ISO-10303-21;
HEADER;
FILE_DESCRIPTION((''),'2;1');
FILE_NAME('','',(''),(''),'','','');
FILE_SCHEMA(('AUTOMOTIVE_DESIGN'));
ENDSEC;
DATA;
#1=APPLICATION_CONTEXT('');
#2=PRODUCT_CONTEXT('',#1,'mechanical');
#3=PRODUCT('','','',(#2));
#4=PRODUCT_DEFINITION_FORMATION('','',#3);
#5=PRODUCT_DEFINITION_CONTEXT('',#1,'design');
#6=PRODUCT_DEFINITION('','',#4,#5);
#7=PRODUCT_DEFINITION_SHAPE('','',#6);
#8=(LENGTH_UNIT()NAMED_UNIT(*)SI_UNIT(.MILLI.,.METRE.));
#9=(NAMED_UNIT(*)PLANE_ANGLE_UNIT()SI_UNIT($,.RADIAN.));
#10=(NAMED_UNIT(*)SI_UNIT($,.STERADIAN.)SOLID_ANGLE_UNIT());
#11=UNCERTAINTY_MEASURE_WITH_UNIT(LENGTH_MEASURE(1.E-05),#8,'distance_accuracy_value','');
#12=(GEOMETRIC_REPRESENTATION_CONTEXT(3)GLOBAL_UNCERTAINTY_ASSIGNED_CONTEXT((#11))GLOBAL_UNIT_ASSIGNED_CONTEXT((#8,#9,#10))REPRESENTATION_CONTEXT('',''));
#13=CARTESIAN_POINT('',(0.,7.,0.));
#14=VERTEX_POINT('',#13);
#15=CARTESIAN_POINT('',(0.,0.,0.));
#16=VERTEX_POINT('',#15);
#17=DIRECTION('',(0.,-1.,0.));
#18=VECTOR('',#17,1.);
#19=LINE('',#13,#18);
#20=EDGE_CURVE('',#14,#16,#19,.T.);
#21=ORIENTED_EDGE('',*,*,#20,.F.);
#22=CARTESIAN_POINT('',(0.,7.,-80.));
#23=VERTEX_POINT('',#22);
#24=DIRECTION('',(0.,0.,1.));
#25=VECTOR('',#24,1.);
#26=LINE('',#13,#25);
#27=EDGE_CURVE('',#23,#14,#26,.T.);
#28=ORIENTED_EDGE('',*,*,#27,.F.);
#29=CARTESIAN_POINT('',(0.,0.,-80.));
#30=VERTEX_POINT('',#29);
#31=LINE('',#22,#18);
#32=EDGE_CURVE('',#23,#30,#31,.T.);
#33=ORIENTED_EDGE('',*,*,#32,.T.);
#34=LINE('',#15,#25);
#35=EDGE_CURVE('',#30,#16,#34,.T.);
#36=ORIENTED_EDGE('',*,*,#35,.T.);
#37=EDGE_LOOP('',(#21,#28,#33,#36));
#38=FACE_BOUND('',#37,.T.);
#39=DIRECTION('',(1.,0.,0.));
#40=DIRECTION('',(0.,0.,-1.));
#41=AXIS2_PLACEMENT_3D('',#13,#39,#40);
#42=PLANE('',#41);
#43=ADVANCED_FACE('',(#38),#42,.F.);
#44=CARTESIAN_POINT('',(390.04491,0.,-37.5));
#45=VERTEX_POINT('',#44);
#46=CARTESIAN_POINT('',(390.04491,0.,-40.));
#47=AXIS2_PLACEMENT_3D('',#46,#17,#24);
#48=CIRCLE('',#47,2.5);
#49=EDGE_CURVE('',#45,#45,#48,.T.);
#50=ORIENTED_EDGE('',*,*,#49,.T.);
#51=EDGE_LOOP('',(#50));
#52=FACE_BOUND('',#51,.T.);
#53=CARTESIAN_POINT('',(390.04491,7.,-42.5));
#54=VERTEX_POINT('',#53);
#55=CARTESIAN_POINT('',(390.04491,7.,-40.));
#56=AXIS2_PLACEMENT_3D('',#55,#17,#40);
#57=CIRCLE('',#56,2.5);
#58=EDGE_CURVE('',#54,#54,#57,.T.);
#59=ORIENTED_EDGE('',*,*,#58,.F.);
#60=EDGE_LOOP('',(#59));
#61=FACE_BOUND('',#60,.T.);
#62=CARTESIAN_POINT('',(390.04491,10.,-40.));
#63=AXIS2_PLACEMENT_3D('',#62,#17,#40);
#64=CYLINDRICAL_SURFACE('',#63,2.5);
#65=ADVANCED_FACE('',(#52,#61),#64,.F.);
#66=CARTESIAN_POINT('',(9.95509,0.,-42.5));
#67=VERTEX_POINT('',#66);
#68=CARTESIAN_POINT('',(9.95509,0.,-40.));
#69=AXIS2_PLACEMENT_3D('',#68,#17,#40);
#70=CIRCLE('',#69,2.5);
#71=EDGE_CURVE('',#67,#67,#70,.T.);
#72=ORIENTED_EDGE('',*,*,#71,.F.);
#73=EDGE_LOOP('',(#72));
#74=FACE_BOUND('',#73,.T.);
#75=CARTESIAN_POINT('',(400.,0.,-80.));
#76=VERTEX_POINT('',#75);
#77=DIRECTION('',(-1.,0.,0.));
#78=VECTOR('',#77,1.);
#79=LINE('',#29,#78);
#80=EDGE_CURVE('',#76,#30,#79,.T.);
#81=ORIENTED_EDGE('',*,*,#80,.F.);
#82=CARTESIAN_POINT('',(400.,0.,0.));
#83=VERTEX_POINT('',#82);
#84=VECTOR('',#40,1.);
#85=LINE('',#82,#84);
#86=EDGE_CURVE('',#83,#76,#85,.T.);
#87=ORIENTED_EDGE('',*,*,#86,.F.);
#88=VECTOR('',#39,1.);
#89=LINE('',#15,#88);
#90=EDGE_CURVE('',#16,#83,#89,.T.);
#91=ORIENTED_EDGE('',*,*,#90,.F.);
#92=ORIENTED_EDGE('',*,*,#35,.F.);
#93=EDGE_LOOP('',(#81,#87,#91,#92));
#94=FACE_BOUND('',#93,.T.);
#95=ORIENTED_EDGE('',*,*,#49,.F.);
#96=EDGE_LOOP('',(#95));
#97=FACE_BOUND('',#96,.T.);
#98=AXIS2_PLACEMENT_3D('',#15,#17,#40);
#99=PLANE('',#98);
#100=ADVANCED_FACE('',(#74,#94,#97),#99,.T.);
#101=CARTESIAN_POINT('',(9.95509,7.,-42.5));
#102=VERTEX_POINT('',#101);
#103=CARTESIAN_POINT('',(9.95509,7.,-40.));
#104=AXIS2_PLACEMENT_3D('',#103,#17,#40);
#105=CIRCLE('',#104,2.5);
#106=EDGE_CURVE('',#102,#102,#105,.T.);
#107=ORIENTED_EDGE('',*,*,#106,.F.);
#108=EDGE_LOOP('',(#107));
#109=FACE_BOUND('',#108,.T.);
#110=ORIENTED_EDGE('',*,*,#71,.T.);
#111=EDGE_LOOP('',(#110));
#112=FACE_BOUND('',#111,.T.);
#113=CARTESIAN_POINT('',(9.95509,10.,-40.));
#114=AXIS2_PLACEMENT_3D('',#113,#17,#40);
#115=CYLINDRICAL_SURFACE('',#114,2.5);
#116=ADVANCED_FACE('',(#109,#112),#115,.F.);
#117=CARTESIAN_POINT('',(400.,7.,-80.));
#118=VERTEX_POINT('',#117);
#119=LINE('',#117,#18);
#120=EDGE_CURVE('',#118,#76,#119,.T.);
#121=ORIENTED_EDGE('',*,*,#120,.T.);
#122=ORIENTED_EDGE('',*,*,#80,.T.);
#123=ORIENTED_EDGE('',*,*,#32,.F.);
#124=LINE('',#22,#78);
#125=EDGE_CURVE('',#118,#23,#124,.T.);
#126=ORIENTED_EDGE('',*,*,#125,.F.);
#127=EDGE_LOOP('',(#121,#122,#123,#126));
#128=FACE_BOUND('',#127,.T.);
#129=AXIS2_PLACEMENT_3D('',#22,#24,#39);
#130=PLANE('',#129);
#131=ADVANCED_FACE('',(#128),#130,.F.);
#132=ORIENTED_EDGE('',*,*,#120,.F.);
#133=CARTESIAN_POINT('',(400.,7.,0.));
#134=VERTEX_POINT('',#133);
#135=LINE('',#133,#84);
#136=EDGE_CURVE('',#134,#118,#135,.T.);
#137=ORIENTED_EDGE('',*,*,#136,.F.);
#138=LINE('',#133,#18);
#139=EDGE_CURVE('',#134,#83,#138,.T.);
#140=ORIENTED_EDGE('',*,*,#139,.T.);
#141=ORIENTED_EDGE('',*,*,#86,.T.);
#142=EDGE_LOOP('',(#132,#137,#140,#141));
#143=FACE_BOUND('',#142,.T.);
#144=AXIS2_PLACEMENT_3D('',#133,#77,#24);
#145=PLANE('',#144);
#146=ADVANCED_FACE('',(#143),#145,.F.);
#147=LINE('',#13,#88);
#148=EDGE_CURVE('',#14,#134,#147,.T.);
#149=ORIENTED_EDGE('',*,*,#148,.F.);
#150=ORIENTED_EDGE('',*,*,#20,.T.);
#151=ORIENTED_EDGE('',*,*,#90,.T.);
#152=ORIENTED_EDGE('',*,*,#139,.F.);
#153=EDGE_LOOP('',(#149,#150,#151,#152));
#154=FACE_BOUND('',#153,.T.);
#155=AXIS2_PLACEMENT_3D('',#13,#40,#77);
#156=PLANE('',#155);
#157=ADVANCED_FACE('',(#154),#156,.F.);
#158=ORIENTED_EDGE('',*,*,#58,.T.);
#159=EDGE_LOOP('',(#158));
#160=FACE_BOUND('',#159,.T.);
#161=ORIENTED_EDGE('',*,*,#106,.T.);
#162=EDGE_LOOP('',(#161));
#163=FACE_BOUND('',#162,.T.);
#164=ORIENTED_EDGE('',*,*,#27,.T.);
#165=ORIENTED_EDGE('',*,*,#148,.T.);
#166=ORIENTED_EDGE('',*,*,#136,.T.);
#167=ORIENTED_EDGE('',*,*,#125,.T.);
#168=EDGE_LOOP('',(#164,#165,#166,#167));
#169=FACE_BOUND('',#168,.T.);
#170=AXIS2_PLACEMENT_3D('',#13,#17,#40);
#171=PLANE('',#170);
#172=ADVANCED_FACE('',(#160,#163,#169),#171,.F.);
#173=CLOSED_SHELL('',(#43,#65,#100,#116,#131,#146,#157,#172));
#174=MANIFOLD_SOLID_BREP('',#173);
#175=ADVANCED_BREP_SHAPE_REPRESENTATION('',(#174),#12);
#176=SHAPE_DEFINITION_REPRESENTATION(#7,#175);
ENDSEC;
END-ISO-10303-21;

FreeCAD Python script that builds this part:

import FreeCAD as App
import Part
import Sketcher
Q = App.Units.Quantity


def add_polygon(sketch, points):
    """Adds a closed chain of lines whose ends are joined by coincident constraints."""
    first, n = sketch.GeometryCount, len(points)
    for a, b in zip(points, points[1:] + points[:1]):
        sketch.addGeometry(Part.LineSegment(App.Vector(*a, 0), App.Vector(*b, 0)), False)
    for i in range(n):
        sketch.addConstraint(Sketcher.Constraint("Coincident", first + i, 2, first + (i + 1) % n, 1))

doc = App.newDocument("Part")
body = doc.addObject("PartDesign::Body", "Body")

sketch1 = doc.addObject("Sketcher::SketchObject", "Sketch")
body.addObject(sketch1)
sketch1.AttachmentSupport = (doc.XZ_Plane, [""])
sketch1.MapMode = "FlatFace"
add_polygon(sketch1, [(0, -80), (0, 0), (400, 0), (400, -80)])
sketch1.addConstraint([
    Sketcher.Constraint("Vertical", 0),
    Sketcher.Constraint("Horizontal", 1),
    Sketcher.Constraint("Vertical", 2),
    Sketcher.Constraint("Horizontal", 3),
    Sketcher.Constraint("Coincident", 0, 2, -1, 1),
    Sketcher.Constraint("DistanceX", 1, 1, 1, 2, Q("400 mm")),
    Sketcher.Constraint("DistanceY", 0, 1, 0, 2, Q("80 mm")),
])
pad1 = doc.addObject("PartDesign::Pad", "Pad")
body.addObject(pad1)
pad1.Profile = sketch1
pad1.Length = 7
pad1.Reversed = True

sketch2 = doc.addObject("Sketcher::SketchObject", "Sketch001")
body.addObject(sketch2)
sketch2.AttachmentSupport = (doc.XZ_Plane, [""])
sketch2.MapMode = "FlatFace"
sketch2.addGeometry([
    Part.Circle(App.Vector(9.95509, -40, 0), App.Vector(0, 0, 1), 2.5),
    Part.Circle(App.Vector(390.04491, -40, 0), App.Vector(0, 0, 1), 2.5),
], False)
sketch2.addConstraint([
    Sketcher.Constraint("Equal", 0, 1),
    Sketcher.Constraint("Horizontal", 0, 3, 1, 3),
    Sketcher.Constraint("Diameter", 0, Q("5 mm")),
    Sketcher.Constraint("DistanceY", 0, 3, -1, 1, Q("40 mm")),
    Sketcher.Constraint("DistanceX", -1, 1, 0, 3, Q("9.95509 mm")),
    Sketcher.Constraint("DistanceX", -1, 1, 1, 3, Q("390.04491 mm")),
])
pocket1 = doc.addObject("PartDesign::Pocket", "Pocket")
body.addObject(pocket1)
pocket1.Profile = sketch2
pocket1.Length = 10

doc.recompute()
